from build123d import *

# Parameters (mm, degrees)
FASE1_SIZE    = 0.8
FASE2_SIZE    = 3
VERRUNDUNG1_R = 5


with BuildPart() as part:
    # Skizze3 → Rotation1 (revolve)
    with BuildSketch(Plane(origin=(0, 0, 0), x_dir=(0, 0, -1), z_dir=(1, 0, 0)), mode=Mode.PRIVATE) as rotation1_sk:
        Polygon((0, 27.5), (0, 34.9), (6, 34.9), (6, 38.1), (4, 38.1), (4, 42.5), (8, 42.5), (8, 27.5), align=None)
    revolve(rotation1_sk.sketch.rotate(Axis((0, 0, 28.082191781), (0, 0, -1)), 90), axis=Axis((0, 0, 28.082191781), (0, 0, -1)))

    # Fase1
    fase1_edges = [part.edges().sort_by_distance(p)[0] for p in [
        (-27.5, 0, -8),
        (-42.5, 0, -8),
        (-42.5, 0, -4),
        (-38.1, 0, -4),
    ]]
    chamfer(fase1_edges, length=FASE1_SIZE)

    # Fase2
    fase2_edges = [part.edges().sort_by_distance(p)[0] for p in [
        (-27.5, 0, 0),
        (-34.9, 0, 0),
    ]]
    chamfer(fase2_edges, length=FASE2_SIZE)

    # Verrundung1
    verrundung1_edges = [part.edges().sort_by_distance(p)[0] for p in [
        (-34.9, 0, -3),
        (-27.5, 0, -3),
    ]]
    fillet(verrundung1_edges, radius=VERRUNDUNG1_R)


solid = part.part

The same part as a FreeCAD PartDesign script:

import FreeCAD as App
import Part
import Sketcher
from FreeCAD import Vector
Q = App.Units.Quantity


def edges_at(feature, points):
    """Names of the edges that pass closest to the given points."""
    edges = feature.Shape.Edges
    near = lambda p: min(range(len(edges)), key=lambda i: edges[i].distToShape(Part.Vertex(*p))[0])
    return sorted({f"Edge{near(p) + 1}" for p in points})


def add_polygon(sketch, points):
    """Adds a closed chain of lines whose ends are joined by coincident constraints."""
    first, n = sketch.GeometryCount, len(points)
    for a, b in zip(points, points[1:] + points[:1]):
        sketch.addGeometry(Part.LineSegment(App.Vector(*a, 0), App.Vector(*b, 0)), False)
    for i in range(n):
        sketch.addConstraint(Sketcher.Constraint("Coincident", first + i, 2, first + (i + 1) % n, 1))

doc = App.newDocument("Part")
params = doc.addObject("Spreadsheet::Sheet", "Params")
for row, (alias, value) in enumerate([
    ("sketch1_width", "15 mm"),
    ("sketch1_height", "8 mm"),
    ("sketch1_height2", "4 mm"),
    ("sketch1_height3", "2 mm"),
    ("sketch1_width2", "7.4 mm"),
    ("revolution_angle", "360 deg"),
    ("chamfer_size", "0.8 mm"),
    ("chamfer2_size", "3 mm"),
    ("fillet_radius", "5 mm"),
], start=1):
    params.set(f"A{row}", alias)
    params.set(f"B{row}", "=" + value)
    params.setAlias(f"B{row}", alias)

body = doc.addObject("PartDesign::Body", "Body")

# Sketch on YZ plane
sketch1 = doc.addObject("Sketcher::SketchObject", "Sketch")
body.addObject(sketch1)
sketch1.AttachmentSupport = (doc.YZ_Plane, [""])
sketch1.MapMode = "FlatFace"
add_polygon(sketch1, [(34.9, 0), (27.5, 0), (27.5, -8), (42.5, -8), (42.5, -4), (38.1, -4), (38.1, -6), (34.9, -6)])  # lines 0-7
sketch1.addConstraint(Sketcher.Constraint("Horizontal", 0))
sketch1.addConstraint(Sketcher.Constraint("Vertical", 1))
sketch1.addConstraint(Sketcher.Constraint("Horizontal", 2))
sketch1.addConstraint(Sketcher.Constraint("Vertical", 3))
sketch1.addConstraint(Sketcher.Constraint("Horizontal", 4))
sketch1.addConstraint(Sketcher.Constraint("Vertical", 5))
sketch1.addConstraint(Sketcher.Constraint("Horizontal", 6))
sketch1.addConstraint(Sketcher.Constraint("Vertical", 7))
sketch1.addConstraint(Sketcher.Constraint("PointOnObject", 0, 2, -1))
sketch1.addConstraint(Sketcher.Constraint("DistanceX", 2, 1, 2, 2, Q("15 mm")))
sketch1.addConstraint(Sketcher.Constraint("DistanceY", 1, 2, 1, 1, Q("8 mm")))
sketch1.addConstraint(Sketcher.Constraint("DistanceY", 3, 1, 3, 2, Q("4 mm")))
sketch1.addConstraint(Sketcher.Constraint("DistanceY", 5, 2, 5, 1, Q("2 mm")))
sketch1.addConstraint(Sketcher.Constraint("DistanceX", 0, 2, 0, 1, Q("7.4 mm")))
sketch1.addConstraint(Sketcher.Constraint("DistanceX", 4, 2, 4, 1, Q("4.4 mm")))
sketch1.addConstraint(Sketcher.Constraint("DistanceX", -1, 1, 0, 2, Q("27.5 mm")))
sketch1.setExpression("Constraints[17]", "Params.sketch1_width")
sketch1.setExpression("Constraints[18]", "Params.sketch1_height")
sketch1.setExpression("Constraints[19]", "Params.sketch1_height2")
sketch1.setExpression("Constraints[20]", "Params.sketch1_height3")
sketch1.setExpression("Constraints[21]", "Params.sketch1_width2")
revolution = doc.addObject("PartDesign::Revolution", "Revolution")
body.addObject(revolution)
revolution.Profile = sketch1
revolution.ReferenceAxis = (sketch1, ["V_Axis"])
revolution.setExpression("Angle", "Params.revolution_angle")
doc.recompute()

chamfer = doc.addObject("PartDesign::Chamfer", "Chamfer")
body.addObject(chamfer)
chamfer.Base = (revolution, edges_at(revolution, [
    (-27.5, 0, -8),
    (-42.5, 0, -8),
    (-42.5, 0, -4),
    (-38.1, 0, -4),
]))
chamfer.setExpression("Size", "Params.chamfer_size")
doc.recompute()

chamfer2 = doc.addObject("PartDesign::Chamfer", "Chamfer001")
body.addObject(chamfer2)
chamfer2.Base = (chamfer, edges_at(chamfer, [(-27.5, 0, 0), (-34.9, 0, 0)]))
chamfer2.setExpression("Size", "Params.chamfer2_size")
doc.recompute()

fillet = doc.addObject("PartDesign::Fillet", "Fillet")
body.addObject(fillet)
fillet.Base = (chamfer2, edges_at(chamfer2, [(-34.9, 0, -3), (-27.5, 0, -3)]))
fillet.setExpression("Radius", "Params.fillet_radius")

doc.recompute()
